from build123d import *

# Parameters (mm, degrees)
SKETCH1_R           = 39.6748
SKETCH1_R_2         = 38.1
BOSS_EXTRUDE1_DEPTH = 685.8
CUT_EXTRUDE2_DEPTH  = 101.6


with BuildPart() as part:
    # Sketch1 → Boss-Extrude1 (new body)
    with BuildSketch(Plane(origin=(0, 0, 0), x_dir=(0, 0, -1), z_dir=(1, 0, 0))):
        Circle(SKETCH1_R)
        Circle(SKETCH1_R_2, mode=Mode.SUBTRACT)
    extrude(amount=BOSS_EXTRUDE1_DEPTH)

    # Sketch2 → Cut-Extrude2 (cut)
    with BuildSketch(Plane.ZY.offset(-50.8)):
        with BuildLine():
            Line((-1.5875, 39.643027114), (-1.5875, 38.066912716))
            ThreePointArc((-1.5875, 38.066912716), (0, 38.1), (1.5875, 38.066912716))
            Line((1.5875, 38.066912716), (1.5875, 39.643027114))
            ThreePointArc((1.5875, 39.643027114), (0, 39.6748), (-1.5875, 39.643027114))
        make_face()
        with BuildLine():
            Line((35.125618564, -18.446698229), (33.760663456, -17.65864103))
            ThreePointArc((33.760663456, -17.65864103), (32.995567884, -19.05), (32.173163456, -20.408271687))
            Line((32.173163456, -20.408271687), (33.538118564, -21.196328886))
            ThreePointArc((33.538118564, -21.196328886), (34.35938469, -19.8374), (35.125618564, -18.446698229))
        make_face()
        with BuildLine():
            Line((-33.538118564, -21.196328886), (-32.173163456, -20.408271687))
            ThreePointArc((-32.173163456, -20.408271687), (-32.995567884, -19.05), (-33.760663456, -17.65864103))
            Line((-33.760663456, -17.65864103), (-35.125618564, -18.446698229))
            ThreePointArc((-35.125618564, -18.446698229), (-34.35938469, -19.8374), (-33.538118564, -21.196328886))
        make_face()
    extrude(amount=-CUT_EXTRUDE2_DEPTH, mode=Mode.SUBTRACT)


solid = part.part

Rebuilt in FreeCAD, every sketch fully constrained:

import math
import FreeCAD as App
import Part
import Sketcher
from FreeCAD import Vector
Q = App.Units.Quantity

doc = App.newDocument("Part")
body = doc.addObject("PartDesign::Body", "Body")

sketch1 = body.newObject("Sketcher::SketchObject", "Sketch")
sketch1.AttachmentSupport = (doc.getObject("YZ_Plane"), [""])
sketch1.MapMode = "FlatFace"
sketch1.addGeometry(Part.Circle(Vector(0, 0, 0), Vector(0, 0, 1), 40), False)
sketch1.addGeometry(Part.Circle(Vector(0, 0, 0), Vector(0, 0, 1), 38), False)
sketch1.addConstraint(Sketcher.Constraint("Coincident", 0, 3, -1, 1))
sketch1.addConstraint(Sketcher.Constraint("Coincident", 1, 3, -1, 1))
sketch1.addConstraint(Sketcher.Constraint("Diameter", 1, Q("3 in")))
sketch1.addConstraint(Sketcher.Constraint("Diameter", 0, Q("3.124 in")))
pad1 = body.newObject("PartDesign::Pad", "Pad")
pad1.Profile = sketch1
pad1.Length = Q("27 in")

sketch2 = body.newObject("Sketcher::SketchObject", "Sketch001")
sketch2.AttachmentSupport = (doc.getObject("YZ_Plane"), [""])
sketch2.MapMode = "FlatFace"
sketch2.AttachmentOffset = App.Placement(Vector(0, 0, 2 * 25.4), App.Rotation())
sketch2.addGeometry(Part.LineSegment(Vector(39.6, -1.6, 0), Vector(38.1, -1.6, 0)), False)
sketch2.addGeometry(Part.ArcOfCircle(Part.Circle(Vector(0, 0, 0), Vector(0, 0, 1), 38.1), math.radians(-2.39), math.radians(2.39)), False)
sketch2.addGeometry(Part.LineSegment(Vector(38.1, 1.6, 0), Vector(39.6, 1.6, 0)), False)
sketch2.addGeometry(Part.ArcOfCircle(Part.Circle(Vector(0, 0, 0), Vector(0, 0, 1), 39.7), math.radians(-2.29), math.radians(2.29)), False)
sketch2.addGeometry(Part.LineSegment(Vector(-18.4, 35.1, 0), Vector(-17.7, 33.8, 0)), False)
sketch2.addGeometry(Part.ArcOfCircle(Part.Circle(Vector(0, 0, 0), Vector(0, 0, 1), 38.1), math.radians(117.61), math.radians(122.39)), False)
sketch2.addGeometry(Part.LineSegment(Vector(-20.4, 32.2, 0), Vector(-21.2, 33.5, 0)), False)
sketch2.addGeometry(Part.ArcOfCircle(Part.Circle(Vector(0, 0, 0), Vector(0, 0, 1), 39.7), math.radians(117.71), math.radians(122.29)), False)
sketch2.addGeometry(Part.LineSegment(Vector(-21.2, -33.5, 0), Vector(-20.4, -32.2, 0)), False)
sketch2.addGeometry(Part.ArcOfCircle(Part.Circle(Vector(0, 0, 0), Vector(0, 0, 1), 38.1), math.radians(-122.39), math.radians(-117.61)), False)
sketch2.addGeometry(Part.LineSegment(Vector(-17.7, -33.8, 0), Vector(-18.4, -35.1, 0)), False)
sketch2.addGeometry(Part.ArcOfCircle(Part.Circle(Vector(0, 0, 0), Vector(0, 0, 1), 39.7), math.radians(-122.29), math.radians(-117.71)), False)
sketch2.addConstraint(Sketcher.Constraint("Coincident", 0, 2, 1, 1))
sketch2.addConstraint(Sketcher.Constraint("Coincident", 1, 2, 2, 1))
sketch2.addConstraint(Sketcher.Constraint("Coincident", 2, 2, 3, 2))
sketch2.addConstraint(Sketcher.Constraint("Coincident", 3, 1, 0, 1))
sketch2.addConstraint(Sketcher.Constraint("Coincident", 4, 2, 5, 1))
sketch2.addConstraint(Sketcher.Constraint("Coincident", 5, 2, 6, 1))
sketch2.addConstraint(Sketcher.Constraint("Coincident", 6, 2, 7, 2))
sketch2.addConstraint(Sketcher.Constraint("Coincident", 7, 1, 4, 1))
sketch2.addConstraint(Sketcher.Constraint("Coincident", 8, 2, 9, 1))
sketch2.addConstraint(Sketcher.Constraint("Coincident", 9, 2, 10, 1))
sketch2.addConstraint(Sketcher.Constraint("Coincident", 10, 2, 11, 2))
sketch2.addConstraint(Sketcher.Constraint("Coincident", 11, 1, 8, 1))
sketch2.addConstraint(Sketcher.Constraint("Horizontal", 0))
sketch2.addConstraint(Sketcher.Constraint("Horizontal", 2))
sketch2.addConstraint(Sketcher.Constraint("Coincident", 1, 3, -1, 1))
sketch2.addConstraint(Sketcher.Constraint("Coincident", 3, 3, -1, 1))
sketch2.addConstraint(Sketcher.Constraint("Coincident", 5, 3, -1, 1))
sketch2.addConstraint(Sketcher.Constraint("Coincident", 7, 3, -1, 1))
sketch2.addConstraint(Sketcher.Constraint("Coincident", 9, 3, -1, 1))
sketch2.addConstraint(Sketcher.Constraint("Coincident", 11, 3, -1, 1))
sketch2.addConstraint(Sketcher.Constraint("Equal", 1, 5))
sketch2.addConstraint(Sketcher.Constraint("Equal", 3, 7))
sketch2.addConstraint(Sketcher.Constraint("Equal", 5, 9))
sketch2.addConstraint(Sketcher.Constraint("Equal", 7, 11))
sketch2.addConstraint(Sketcher.Constraint("Parallel", 4, 6))
sketch2.addConstraint(Sketcher.Constraint("Parallel", 8, 10))
sketch2.addConstraint(Sketcher.Constraint("Vertical", 0, 2, 1, 2))
sketch2.addConstraint(Sketcher.Constraint("Vertical", 5, 2, 8, 2))
sketch2.addConstraint(Sketcher.Constraint("Vertical", 4, 2, 9, 2))
sketch2.addConstraint(Sketcher.Constraint("Vertical", 7, 1, 10, 2))
sketch2.addConstraint(Sketcher.Constraint("Equal", 4, 6))
sketch2.addConstraint(Sketcher.Constraint("Radius", 1, Q("1.5 in")))
sketch2.addConstraint(Sketcher.Constraint("Angle", 4, Q("-60 deg")))
sketch2.addConstraint(Sketcher.Constraint("Radius", 3, Q("1.562 in")))
sketch2.addConstraint(Sketcher.Constraint("DistanceY", 0, 2, -1, 1, Q("0.0625 in")))
sketch2.addConstraint(Sketcher.Constraint("DistanceY", 5, 2, 4, 2, Q("0.0625 in")))
pocket1 = body.newObject("PartDesign::Pocket", "Pocket")
pocket1.Profile = sketch2
pocket1.Length = Q("4 in")
pocket1.Reversed = True

doc.recompute()
